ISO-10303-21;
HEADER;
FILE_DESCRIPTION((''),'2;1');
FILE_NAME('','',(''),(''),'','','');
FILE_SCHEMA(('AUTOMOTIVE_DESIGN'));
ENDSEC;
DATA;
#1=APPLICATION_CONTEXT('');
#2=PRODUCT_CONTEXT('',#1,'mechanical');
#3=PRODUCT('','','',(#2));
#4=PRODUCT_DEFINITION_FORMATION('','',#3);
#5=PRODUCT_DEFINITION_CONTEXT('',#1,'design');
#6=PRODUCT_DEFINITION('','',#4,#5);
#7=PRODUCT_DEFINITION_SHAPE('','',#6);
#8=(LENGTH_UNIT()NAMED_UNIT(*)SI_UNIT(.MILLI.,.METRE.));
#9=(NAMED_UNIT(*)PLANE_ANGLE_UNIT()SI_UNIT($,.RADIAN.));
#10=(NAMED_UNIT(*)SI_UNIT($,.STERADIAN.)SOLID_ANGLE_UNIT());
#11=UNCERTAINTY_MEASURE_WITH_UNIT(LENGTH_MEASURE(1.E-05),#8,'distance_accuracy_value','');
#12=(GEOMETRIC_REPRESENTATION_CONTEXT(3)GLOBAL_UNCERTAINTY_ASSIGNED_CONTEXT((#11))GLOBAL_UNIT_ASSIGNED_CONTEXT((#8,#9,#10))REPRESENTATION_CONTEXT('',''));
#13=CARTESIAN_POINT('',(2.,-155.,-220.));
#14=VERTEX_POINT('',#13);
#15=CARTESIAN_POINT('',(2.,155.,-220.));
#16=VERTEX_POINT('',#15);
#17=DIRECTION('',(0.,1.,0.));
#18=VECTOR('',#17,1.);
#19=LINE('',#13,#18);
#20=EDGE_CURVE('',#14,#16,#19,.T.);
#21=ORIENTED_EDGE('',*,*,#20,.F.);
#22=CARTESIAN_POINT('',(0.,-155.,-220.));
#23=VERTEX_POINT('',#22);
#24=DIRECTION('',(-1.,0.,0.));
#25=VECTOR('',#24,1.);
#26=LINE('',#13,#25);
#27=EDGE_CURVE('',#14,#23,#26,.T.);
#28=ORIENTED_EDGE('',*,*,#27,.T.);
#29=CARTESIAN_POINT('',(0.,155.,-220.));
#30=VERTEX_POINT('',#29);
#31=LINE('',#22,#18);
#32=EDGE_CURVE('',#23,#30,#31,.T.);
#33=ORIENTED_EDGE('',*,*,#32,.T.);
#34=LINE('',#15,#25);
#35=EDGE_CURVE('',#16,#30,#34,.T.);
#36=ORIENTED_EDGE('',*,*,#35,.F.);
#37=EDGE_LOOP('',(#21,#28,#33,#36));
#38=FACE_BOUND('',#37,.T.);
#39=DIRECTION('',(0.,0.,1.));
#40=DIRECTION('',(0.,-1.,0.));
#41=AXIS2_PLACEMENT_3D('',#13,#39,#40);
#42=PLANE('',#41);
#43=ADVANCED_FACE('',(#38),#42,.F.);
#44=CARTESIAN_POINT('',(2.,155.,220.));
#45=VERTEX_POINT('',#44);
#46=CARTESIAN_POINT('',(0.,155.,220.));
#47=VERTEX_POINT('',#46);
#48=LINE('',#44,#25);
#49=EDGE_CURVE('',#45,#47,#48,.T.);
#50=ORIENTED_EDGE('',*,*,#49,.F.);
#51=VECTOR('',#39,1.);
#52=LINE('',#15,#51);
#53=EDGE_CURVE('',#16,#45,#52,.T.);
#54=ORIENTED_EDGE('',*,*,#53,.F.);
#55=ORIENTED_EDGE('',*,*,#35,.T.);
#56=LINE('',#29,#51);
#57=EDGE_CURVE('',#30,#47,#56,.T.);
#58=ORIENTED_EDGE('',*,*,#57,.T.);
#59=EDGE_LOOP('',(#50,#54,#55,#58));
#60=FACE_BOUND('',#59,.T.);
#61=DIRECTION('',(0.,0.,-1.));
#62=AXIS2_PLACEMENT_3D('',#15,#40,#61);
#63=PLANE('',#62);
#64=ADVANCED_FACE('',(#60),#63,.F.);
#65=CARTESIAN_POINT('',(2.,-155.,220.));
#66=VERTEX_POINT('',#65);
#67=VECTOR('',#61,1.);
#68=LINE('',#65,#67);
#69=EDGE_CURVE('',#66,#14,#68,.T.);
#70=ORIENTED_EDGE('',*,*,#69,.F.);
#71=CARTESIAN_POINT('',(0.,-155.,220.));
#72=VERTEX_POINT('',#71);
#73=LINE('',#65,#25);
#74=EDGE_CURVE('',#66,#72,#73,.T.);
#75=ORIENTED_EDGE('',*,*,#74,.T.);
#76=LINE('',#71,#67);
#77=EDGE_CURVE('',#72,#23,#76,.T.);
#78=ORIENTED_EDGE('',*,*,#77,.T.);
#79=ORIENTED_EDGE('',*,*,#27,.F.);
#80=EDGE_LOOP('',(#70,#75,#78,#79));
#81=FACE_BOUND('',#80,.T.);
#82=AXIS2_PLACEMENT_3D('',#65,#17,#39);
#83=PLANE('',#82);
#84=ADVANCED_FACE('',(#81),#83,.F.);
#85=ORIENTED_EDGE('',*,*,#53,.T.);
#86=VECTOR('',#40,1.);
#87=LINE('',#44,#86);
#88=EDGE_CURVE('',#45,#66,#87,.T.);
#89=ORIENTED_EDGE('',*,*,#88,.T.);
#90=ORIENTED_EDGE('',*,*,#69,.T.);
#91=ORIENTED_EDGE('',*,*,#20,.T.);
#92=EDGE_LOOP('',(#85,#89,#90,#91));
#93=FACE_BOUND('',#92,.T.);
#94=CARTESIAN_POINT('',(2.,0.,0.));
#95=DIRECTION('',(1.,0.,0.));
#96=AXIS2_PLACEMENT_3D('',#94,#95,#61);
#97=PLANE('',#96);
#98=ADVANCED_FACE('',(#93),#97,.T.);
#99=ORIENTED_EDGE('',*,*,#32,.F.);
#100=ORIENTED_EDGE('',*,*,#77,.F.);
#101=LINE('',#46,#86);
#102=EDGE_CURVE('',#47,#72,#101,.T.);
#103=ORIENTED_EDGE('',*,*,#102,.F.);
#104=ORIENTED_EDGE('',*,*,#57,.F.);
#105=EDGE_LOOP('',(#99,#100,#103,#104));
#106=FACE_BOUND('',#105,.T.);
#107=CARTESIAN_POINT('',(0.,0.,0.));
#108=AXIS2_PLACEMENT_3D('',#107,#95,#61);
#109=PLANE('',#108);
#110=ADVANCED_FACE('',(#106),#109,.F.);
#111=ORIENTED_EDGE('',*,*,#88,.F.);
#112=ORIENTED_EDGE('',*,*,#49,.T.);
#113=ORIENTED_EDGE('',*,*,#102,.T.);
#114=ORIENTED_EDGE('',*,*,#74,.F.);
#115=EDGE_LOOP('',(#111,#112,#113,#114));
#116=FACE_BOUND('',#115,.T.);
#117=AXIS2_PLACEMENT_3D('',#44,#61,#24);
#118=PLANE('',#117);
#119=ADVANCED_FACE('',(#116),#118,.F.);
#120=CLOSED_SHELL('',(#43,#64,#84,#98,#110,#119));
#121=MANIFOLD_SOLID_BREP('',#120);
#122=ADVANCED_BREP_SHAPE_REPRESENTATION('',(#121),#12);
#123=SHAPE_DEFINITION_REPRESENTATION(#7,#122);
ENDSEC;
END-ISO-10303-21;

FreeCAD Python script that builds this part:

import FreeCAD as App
import Part
import Sketcher
Q = App.Units.Quantity

doc = App.newDocument("Part")
body = doc.addObject("PartDesign::Body", "Body")

# Sketch on YZ plane
sketch1 = body.newObject("Sketcher::SketchObject", "Sketch")
sketch1.AttachmentSupport = (doc.getObject("YZ_Plane"), [""])
sketch1.MapMode = "FlatFace"
sketch1.addGeometry([
    Part.LineSegment(App.Vector(155, 220, 0), App.Vector(-155, 220, 0)),
    Part.LineSegment(App.Vector(-155, 220, 0), App.Vector(-155, -220, 0)),
    Part.LineSegment(App.Vector(-155, -220, 0), App.Vector(155, -220, 0)),
    Part.LineSegment(App.Vector(155, -220, 0), App.Vector(155, 220, 0)),
], False)
sketch1.addConstraint([
    Sketcher.Constraint("Coincident", 0, 2, 1, 1),
    Sketcher.Constraint("Coincident", 1, 2, 2, 1),
    Sketcher.Constraint("Coincident", 2, 2, 3, 1),
    Sketcher.Constraint("Coincident", 3, 2, 0, 1),
    Sketcher.Constraint("Horizontal", 0),
    Sketcher.Constraint("Vertical", 1),
    Sketcher.Constraint("Horizontal", 2),
    Sketcher.Constraint("Vertical", 3),
    Sketcher.Constraint("Symmetric", 0, 2, 2, 2, -1, 1),
    Sketcher.Constraint("DistanceX", 0, 2, 0, 1, Q("310 mm")),
    Sketcher.Constraint("DistanceY", 1, 2, 1, 1, Q("440 mm")),
])
pad1 = body.newObject("PartDesign::Pad", "Pad")
pad1.Profile = sketch1
pad1.Length = 2

doc.recompute()
